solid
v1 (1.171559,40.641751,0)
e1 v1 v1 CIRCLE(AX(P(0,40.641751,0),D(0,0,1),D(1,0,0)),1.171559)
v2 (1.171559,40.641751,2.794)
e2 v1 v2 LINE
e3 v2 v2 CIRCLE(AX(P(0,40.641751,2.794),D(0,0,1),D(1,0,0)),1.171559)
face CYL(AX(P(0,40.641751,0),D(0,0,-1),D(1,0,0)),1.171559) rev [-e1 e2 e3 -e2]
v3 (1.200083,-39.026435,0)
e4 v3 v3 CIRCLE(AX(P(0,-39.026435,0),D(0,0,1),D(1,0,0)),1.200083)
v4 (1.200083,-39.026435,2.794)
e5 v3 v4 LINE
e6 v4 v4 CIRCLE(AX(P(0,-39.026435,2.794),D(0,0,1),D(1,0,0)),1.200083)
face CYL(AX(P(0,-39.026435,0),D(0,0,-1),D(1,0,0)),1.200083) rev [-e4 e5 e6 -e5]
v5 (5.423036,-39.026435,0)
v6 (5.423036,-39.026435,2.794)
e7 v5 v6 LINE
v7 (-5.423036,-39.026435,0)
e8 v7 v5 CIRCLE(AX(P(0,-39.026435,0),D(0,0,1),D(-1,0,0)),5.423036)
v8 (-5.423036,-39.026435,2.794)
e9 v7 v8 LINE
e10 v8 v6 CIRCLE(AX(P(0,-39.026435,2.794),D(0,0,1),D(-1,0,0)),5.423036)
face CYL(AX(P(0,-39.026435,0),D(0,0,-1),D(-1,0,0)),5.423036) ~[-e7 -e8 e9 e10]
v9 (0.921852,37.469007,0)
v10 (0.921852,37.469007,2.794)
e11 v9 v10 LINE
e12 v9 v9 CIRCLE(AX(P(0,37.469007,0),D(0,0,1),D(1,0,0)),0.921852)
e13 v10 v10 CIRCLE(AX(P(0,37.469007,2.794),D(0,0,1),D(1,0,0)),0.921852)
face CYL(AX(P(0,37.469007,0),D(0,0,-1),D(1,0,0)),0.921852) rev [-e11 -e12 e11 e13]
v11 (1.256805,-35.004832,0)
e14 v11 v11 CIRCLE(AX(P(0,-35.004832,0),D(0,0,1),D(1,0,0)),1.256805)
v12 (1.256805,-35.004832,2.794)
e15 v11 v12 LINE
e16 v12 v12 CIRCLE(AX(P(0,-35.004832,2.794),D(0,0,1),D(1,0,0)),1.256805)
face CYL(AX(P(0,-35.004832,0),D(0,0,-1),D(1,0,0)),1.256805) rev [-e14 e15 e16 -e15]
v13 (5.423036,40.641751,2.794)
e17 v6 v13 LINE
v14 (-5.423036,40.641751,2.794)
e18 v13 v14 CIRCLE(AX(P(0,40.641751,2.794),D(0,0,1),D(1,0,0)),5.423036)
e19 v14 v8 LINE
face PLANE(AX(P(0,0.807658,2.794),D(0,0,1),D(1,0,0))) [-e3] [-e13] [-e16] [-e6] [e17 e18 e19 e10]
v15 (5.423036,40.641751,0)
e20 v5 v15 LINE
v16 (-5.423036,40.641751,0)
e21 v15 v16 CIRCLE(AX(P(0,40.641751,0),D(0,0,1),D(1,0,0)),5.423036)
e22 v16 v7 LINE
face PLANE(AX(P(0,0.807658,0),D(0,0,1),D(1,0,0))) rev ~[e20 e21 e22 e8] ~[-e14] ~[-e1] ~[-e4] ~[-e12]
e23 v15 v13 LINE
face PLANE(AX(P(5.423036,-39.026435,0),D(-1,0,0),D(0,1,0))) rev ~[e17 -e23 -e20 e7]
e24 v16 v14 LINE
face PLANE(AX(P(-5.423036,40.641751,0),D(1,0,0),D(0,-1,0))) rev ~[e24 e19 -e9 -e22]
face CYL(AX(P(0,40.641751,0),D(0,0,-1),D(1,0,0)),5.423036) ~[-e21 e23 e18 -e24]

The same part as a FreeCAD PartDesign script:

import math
import FreeCAD as App
import Part
import Sketcher
from FreeCAD import Vector
Q = App.Units.Quantity

doc = App.newDocument("Part")
body = doc.addObject("PartDesign::Body", "Body")

# Sketch on XY plane
sketch1 = body.newObject("Sketcher::SketchObject", "Sketch")
sketch1.AttachmentSupport = (doc.getObject("XY_Plane"), [""])
sketch1.MapMode = "FlatFace"
sketch1.addGeometry(Part.LineSegment(Vector(5.4, -39, 0), Vector(5.4, 40.6, 0)), False)
sketch1.addGeometry(Part.ArcOfCircle(Part.Circle(Vector(0, 40.6, 0), Vector(0, 0, 1), 5.4), math.radians(0), math.radians(180)), False)
sketch1.addGeometry(Part.LineSegment(Vector(-5.4, 40.6, 0), Vector(-5.4, -39, 0)), False)
sketch1.addGeometry(Part.ArcOfCircle(Part.Circle(Vector(0, -39, 0), Vector(0, 0, 1), 5.4), math.radians(180), math.radians(360)), False)
sketch1.addGeometry(Part.Circle(Vector(0, -39, 0), Vector(0, 0, 1), 1.2), False)
sketch1.addGeometry(Part.Circle(Vector(0, -35, 0), Vector(0, 0, 1), 1.3), False)
sketch1.addGeometry(Part.Circle(Vector(0, 37.5, 0), Vector(0, 0, 1), 0.9), False)
sketch1.addGeometry(Part.Circle(Vector(0, 40.6, 0), Vector(0, 0, 1), 1.2), False)
sketch1.addConstraint(Sketcher.Constraint("Tangent", 0, 2, 1, 1))
sketch1.addConstraint(Sketcher.Constraint("Tangent", 1, 2, 2, 1))
sketch1.addConstraint(Sketcher.Constraint("Tangent", 2, 2, 3, 1))
sketch1.addConstraint(Sketcher.Constraint("Tangent", 3, 2, 0, 1))
sketch1.addConstraint(Sketcher.Constraint("Vertical", 0))
sketch1.addConstraint(Sketcher.Constraint("Vertical", 2))
sketch1.addConstraint(Sketcher.Constraint("Coincident", 4, 3, 3, 3))
sketch1.addConstraint(Sketcher.Constraint("Coincident", 7, 3, 1, 3))
sketch1.addConstraint(Sketcher.Constraint("PointOnObject", 1, 3, -2))
sketch1.addConstraint(Sketcher.Constraint("PointOnObject", 5, 3, -2))
sketch1.addConstraint(Sketcher.Constraint("PointOnObject", 6, 3, -2))
sketch1.addConstraint(Sketcher.Constraint("Diameter", 5, Q("2.51361 mm")))
sketch1.addConstraint(Sketcher.Constraint("Diameter", 7, Q("2.343118 mm")))
sketch1.addConstraint(Sketcher.Constraint("Diameter", 4, Q("2.400166 mm")))
sketch1.addConstraint(Sketcher.Constraint("Diameter", 6, Q("1.843704 mm")))
sketch1.addConstraint(Sketcher.Constraint("Radius", 1, Q("5.423036 mm")))
sketch1.addConstraint(Sketcher.Constraint("DistanceY", 0, 1, 0, 2, Q("79.668186 mm")))
sketch1.addConstraint(Sketcher.Constraint("DistanceY", -1, 1, 1, 3, Q("40.641751 mm")))
sketch1.addConstraint(Sketcher.Constraint("DistanceY", 5, 3, 6, 3, Q("72.473839 mm")))
sketch1.addConstraint(Sketcher.Constraint("DistanceY", 3, 3, 6, 3, Q("76.495442 mm")))
pad1 = body.newObject("PartDesign::Pad", "Pad")
pad1.Profile = sketch1
pad1.Length = Q("0.11 in")

doc.recompute()
